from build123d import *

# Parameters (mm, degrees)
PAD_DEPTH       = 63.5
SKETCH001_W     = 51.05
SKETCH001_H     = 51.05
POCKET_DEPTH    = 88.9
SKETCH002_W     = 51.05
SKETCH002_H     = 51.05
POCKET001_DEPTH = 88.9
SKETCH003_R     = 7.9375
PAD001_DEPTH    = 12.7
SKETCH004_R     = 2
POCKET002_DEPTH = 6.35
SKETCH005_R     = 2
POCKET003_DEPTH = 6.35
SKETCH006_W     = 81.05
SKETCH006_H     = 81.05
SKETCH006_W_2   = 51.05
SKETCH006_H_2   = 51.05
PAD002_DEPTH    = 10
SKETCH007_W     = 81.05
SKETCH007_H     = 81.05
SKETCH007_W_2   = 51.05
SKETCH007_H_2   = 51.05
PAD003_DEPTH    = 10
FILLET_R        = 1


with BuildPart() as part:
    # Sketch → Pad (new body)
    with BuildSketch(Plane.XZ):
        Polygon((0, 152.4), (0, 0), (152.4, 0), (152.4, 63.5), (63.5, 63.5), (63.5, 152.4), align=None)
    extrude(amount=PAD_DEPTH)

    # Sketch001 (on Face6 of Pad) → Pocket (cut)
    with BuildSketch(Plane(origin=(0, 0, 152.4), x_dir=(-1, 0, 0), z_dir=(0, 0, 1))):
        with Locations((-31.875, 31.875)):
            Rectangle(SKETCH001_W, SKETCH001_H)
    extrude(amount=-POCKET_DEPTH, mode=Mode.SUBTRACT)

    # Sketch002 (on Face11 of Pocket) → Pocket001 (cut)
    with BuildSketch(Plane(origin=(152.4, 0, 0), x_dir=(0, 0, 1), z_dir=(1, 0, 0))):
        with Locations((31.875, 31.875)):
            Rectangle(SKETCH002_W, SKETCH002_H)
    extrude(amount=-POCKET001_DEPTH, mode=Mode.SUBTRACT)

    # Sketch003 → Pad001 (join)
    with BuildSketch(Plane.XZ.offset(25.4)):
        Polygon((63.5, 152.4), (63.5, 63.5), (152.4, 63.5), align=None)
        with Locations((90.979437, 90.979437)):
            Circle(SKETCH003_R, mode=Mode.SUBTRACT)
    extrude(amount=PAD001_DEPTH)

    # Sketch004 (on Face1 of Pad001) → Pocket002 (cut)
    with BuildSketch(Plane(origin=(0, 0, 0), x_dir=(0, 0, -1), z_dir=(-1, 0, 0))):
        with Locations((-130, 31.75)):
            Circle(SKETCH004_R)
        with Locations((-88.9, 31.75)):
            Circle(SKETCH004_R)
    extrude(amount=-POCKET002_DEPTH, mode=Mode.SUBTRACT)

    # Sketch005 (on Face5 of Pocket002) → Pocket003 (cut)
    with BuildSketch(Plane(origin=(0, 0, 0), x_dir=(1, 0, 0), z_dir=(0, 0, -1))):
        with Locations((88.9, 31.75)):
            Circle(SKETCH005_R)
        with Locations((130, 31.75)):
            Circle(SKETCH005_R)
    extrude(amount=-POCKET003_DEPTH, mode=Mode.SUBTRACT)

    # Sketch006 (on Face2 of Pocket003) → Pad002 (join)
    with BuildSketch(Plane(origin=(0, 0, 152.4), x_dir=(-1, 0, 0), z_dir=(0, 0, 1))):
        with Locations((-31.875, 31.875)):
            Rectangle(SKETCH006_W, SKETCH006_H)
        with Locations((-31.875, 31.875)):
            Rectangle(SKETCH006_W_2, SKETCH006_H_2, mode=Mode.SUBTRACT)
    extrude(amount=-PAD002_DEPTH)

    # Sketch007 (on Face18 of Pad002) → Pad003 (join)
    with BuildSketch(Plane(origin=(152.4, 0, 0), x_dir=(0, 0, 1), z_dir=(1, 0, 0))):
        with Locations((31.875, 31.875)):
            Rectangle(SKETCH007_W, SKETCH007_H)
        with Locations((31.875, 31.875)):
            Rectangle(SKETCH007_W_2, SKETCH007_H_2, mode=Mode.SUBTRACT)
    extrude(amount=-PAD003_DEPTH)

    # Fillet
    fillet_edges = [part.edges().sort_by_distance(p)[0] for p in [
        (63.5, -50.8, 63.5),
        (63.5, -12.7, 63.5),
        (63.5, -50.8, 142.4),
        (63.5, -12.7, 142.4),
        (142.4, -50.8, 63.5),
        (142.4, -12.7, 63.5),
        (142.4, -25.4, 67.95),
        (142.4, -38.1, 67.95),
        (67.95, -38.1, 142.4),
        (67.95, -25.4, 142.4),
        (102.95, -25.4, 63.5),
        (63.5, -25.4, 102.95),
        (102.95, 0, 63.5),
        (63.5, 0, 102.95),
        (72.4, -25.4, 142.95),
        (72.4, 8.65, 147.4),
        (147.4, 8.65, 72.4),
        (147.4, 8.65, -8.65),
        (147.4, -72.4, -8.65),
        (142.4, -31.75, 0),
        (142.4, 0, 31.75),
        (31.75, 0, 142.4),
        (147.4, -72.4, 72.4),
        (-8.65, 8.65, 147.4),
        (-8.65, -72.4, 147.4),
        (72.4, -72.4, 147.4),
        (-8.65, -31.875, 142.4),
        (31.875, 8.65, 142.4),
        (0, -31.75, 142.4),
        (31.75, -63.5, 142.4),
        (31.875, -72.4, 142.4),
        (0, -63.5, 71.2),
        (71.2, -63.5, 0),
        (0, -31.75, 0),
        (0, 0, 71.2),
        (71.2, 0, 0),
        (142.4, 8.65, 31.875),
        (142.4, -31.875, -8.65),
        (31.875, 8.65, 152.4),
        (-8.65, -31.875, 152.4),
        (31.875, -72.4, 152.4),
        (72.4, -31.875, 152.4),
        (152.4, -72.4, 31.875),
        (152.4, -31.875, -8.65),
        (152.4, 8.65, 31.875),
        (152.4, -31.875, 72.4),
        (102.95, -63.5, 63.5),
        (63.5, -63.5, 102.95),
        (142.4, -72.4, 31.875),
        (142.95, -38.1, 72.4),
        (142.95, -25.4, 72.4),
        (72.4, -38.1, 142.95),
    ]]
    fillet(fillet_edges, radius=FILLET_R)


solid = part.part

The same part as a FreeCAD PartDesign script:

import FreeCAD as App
import Part
import Sketcher
from FreeCAD import Vector
Q = App.Units.Quantity


def edges_at(feature, points):
    """Names of the edges that pass closest to the given points."""
    edges = feature.Shape.Edges
    near = lambda p: min(range(len(edges)), key=lambda i: edges[i].distToShape(Part.Vertex(*p))[0])
    return sorted({f"Edge{near(p) + 1}" for p in points})


def add_polygon(sketch, points):
    """Adds a closed chain of lines whose ends are joined by coincident constraints."""
    first, n = sketch.GeometryCount, len(points)
    for a, b in zip(points, points[1:] + points[:1]):
        sketch.addGeometry(Part.LineSegment(App.Vector(*a, 0), App.Vector(*b, 0)), False)
    for i in range(n):
        sketch.addConstraint(Sketcher.Constraint("Coincident", first + i, 2, first + (i + 1) % n, 1))

doc = App.newDocument("Part")
body = doc.addObject("PartDesign::Body", "Body")

sketch1 = body.newObject("Sketcher::SketchObject", "Sketch")
sketch1.AttachmentSupport = (doc.getObject("XZ_Plane"), [""])
sketch1.MapMode = "FlatFace"
add_polygon(sketch1, [(0, 152), (0, 0), (152, 0), (152, 64), (64, 64), (64, 152)])
sketch1.addConstraint(Sketcher.Constraint("Vertical", 0))
sketch1.addConstraint(Sketcher.Constraint("Horizontal", 1))
sketch1.addConstraint(Sketcher.Constraint("Vertical", 2))
sketch1.addConstraint(Sketcher.Constraint("Horizontal", 3))
sketch1.addConstraint(Sketcher.Constraint("Vertical", 4))
sketch1.addConstraint(Sketcher.Constraint("Horizontal", 5))
sketch1.addConstraint(Sketcher.Constraint("Coincident", 0, 2, -1, 1))
sketch1.addConstraint(Sketcher.Constraint("Equal", 1, 0))
sketch1.addConstraint(Sketcher.Constraint("Equal", 5, 2))
sketch1.addConstraint(Sketcher.Constraint("DistanceX", 1, 1, 1, 2, Q("6 in")))
sketch1.addConstraint(Sketcher.Constraint("DistanceX", 3, 2, 3, 1, Q("3.5 in")))
pad1 = body.newObject("PartDesign::Pad", "Pad")
pad1.Profile = sketch1
pad1.Length = Q("2.5 in")

sketch2 = body.newObject("Sketcher::SketchObject", "Sketch001")
sketch2.AttachmentSupport = (doc.getObject("XY_Plane"), [""])
sketch2.MapMode = "FlatFace"
sketch2.AttachmentOffset = App.Placement(Vector(0, 0, 6 * 25.4), App.Rotation())
add_polygon(sketch2, [(57, -57), (57, -6), (6, -6), (6, -57)])
sketch2.addConstraint(Sketcher.Constraint("Vertical", 0))
sketch2.addConstraint(Sketcher.Constraint("Horizontal", 1))
sketch2.addConstraint(Sketcher.Constraint("Vertical", 2))
sketch2.addConstraint(Sketcher.Constraint("Horizontal", 3))
sketch2.addConstraint(Sketcher.Constraint("Equal", 3, 0))
sketch2.addConstraint(Sketcher.Constraint("DistanceY", 0, 2, -1, 1, Q("0.25 in")))
sketch2.addConstraint(Sketcher.Constraint("DistanceX", -1, 1, 1, 2, Q("0.25 in")))
sketch2.addConstraint(Sketcher.Constraint("DistanceX", 1, 2, 1, 1, Q("51.05 mm")))
pocket1 = body.newObject("PartDesign::Pocket", "Pocket")
pocket1.Profile = sketch2
pocket1.Length = Q("3.5 in")

sketch3 = body.newObject("Sketcher::SketchObject", "Sketch002")
sketch3.AttachmentSupport = (doc.getObject("YZ_Plane"), [""])
sketch3.MapMode = "FlatFace"
sketch3.AttachmentOffset = App.Placement(Vector(0, 0, 6 * 25.4), App.Rotation())
add_polygon(sketch3, [(-57, 6), (-6, 6), (-6, 57), (-57, 57)])
sketch3.addConstraint(Sketcher.Constraint("Horizontal", 0))
sketch3.addConstraint(Sketcher.Constraint("Vertical", 1))
sketch3.addConstraint(Sketcher.Constraint("Horizontal", 2))
sketch3.addConstraint(Sketcher.Constraint("Vertical", 3))
sketch3.addConstraint(Sketcher.Constraint("Equal", 2, 1))
sketch3.addConstraint(Sketcher.Constraint("DistanceX", 0, 2, -1, 1, Q("0.25 in")))
sketch3.addConstraint(Sketcher.Constraint("DistanceY", -1, 1, 0, 2, Q("0.25 in")))
sketch3.addConstraint(Sketcher.Constraint("DistanceX", 0, 1, 0, 2, Q("51.05 mm")))
pocket2 = body.newObject("PartDesign::Pocket", "Pocket001")
pocket2.Profile = sketch3
pocket2.Length = Q("3.5 in")

sketch4 = body.newObject("Sketcher::SketchObject", "Sketch003")
sketch4.AttachmentSupport = (doc.getObject("XZ_Plane"), [""])
sketch4.MapMode = "FlatFace"
sketch4.AttachmentOffset = App.Placement(Vector(0, 0, 1 * 25.4), App.Rotation())
add_polygon(sketch4, [(64, 152), (64, 64), (152, 64)])
sketch4.addGeometry(Part.Circle(Vector(91, 91, 0), Vector(0, 0, 1), 8), False)
sketch4.addConstraint(Sketcher.Constraint("Vertical", 0))
sketch4.addConstraint(Sketcher.Constraint("Horizontal", 1))
sketch4.addConstraint(Sketcher.Constraint("Equal", 1, 0))
sketch4.addConstraint(Sketcher.Constraint("Diameter", 3, Q("0.625 in")))
sketch4.addConstraint(Sketcher.Constraint("DistanceX", 1, 1, 1, 2, Q("3.5 in")))
sketch4.addConstraint(Sketcher.Constraint("DistanceX", -1, 1, 1, 2, Q("6 in")))
sketch4.addConstraint(Sketcher.Constraint("DistanceY", -1, 1, 2, 2, Q("6 in")))
sketch4.addConstraint(Sketcher.Constraint("DistanceX", -1, 1, 3, 3, Q("90.979437 mm")))
sketch4.addConstraint(Sketcher.Constraint("DistanceY", -1, 1, 3, 3, Q("90.979437 mm")))
pad2 = body.newObject("PartDesign::Pad", "Pad001")
pad2.Profile = sketch4
pad2.Length = Q("0.5 in")

sketch5 = body.newObject("Sketcher::SketchObject", "Sketch004")
sketch5.AttachmentSupport = (doc.getObject("YZ_Plane"), [""])
sketch5.MapMode = "FlatFace"
sketch5.addGeometry(Part.Circle(Vector(-31.8, 130, 0), Vector(0, 0, 1), 2), False)
sketch5.addGeometry(Part.Circle(Vector(-31.8, 88.9, 0), Vector(0, 0, 1), 2), False)
sketch5.addConstraint(Sketcher.Constraint("Equal", 0, 1))
sketch5.addConstraint(Sketcher.Constraint("Vertical", 0, 3, 1, 3))
sketch5.addConstraint(Sketcher.Constraint("DistanceY", -1, 1, 1, 3, Q("3.5 in")))
sketch5.addConstraint(Sketcher.Constraint("Diameter", 0, Q("4 mm")))
sketch5.addConstraint(Sketcher.Constraint("DistanceX", 0, 3, -1, 1, Q("1.25 in")))
sketch5.addConstraint(Sketcher.Constraint("DistanceY", -1, 1, 0, 3, Q("130 mm")))
pocket3 = body.newObject("PartDesign::Pocket", "Pocket002")
pocket3.Profile = sketch5
pocket3.Length = Q("0.25 in")
pocket3.Reversed = True

sketch6 = body.newObject("Sketcher::SketchObject", "Sketch005")
sketch6.AttachmentSupport = (doc.getObject("XY_Plane"), [""])
sketch6.MapMode = "FlatFace"
sketch6.addGeometry(Part.Circle(Vector(88.9, -31.8, 0), Vector(0, 0, 1), 2), False)
sketch6.addGeometry(Part.Circle(Vector(130, -31.8, 0), Vector(0, 0, 1), 2), False)
sketch6.addConstraint(Sketcher.Constraint("Equal", 0, 1))
sketch6.addConstraint(Sketcher.Constraint("Horizontal", 0, 3, 1, 3))
sketch6.addConstraint(Sketcher.Constraint("DistanceX", -1, 1, 0, 3, Q("3.5 in")))
sketch6.addConstraint(Sketcher.Constraint("Diameter", 0, Q("4 mm")))
sketch6.addConstraint(Sketcher.Constraint("DistanceY", 0, 3, -1, 1, Q("1.25 in")))
sketch6.addConstraint(Sketcher.Constraint("DistanceX", -1, 1, 1, 3, Q("130 mm")))
pocket4 = body.newObject("PartDesign::Pocket", "Pocket003")
pocket4.Profile = sketch6
pocket4.Length = Q("0.25 in")
pocket4.Reversed = True

sketch7 = body.newObject("Sketcher::SketchObject", "Sketch006")
sketch7.AttachmentSupport = (doc.getObject("XY_Plane"), [""])
sketch7.MapMode = "FlatFace"
sketch7.AttachmentOffset = App.Placement(Vector(0, 0, 6 * 25.4), App.Rotation())
add_polygon(sketch7, [(72, -72), (72, 9), (-9, 9), (-9, -72)])
add_polygon(sketch7, [(6, -6), (57, -6), (57, -57), (6, -57)])
sketch7.addConstraint(Sketcher.Constraint("Vertical", 0))
sketch7.addConstraint(Sketcher.Constraint("Horizontal", 1))
sketch7.addConstraint(Sketcher.Constraint("Vertical", 2))
sketch7.addConstraint(Sketcher.Constraint("Horizontal", 3))
sketch7.addConstraint(Sketcher.Constraint("Horizontal", 4))
sketch7.addConstraint(Sketcher.Constraint("Vertical", 5))
sketch7.addConstraint(Sketcher.Constraint("Horizontal", 6))
sketch7.addConstraint(Sketcher.Constraint("Vertical", 7))
sketch7.addConstraint(Sketcher.Constraint("Equal", 3, 0))
sketch7.addConstraint(Sketcher.Constraint("Equal", 6, 5))
sketch7.addConstraint(Sketcher.Constraint("DistanceY", 4, 2, -1, 1, Q("0.25 in")))
sketch7.addConstraint(Sketcher.Constraint("DistanceX", -1, 1, 6, 2, Q("0.25 in")))
sketch7.addConstraint(Sketcher.Constraint("DistanceX", 1, 2, 1, 1, Q("81.05 mm")))
sketch7.addConstraint(Sketcher.Constraint("DistanceX", 4, 1, 4, 2, Q("51.05 mm")))
sketch7.addConstraint(Sketcher.Constraint("DistanceX", -1, 1, 0, 2, Q("72.4 mm")))
sketch7.addConstraint(Sketcher.Constraint("DistanceY", -1, 1, 0, 2, Q("8.65 mm")))
pad3 = body.newObject("PartDesign::Pad", "Pad002")
pad3.Profile = sketch7
pad3.Length = 10
pad3.Reversed = True

sketch8 = body.newObject("Sketcher::SketchObject", "Sketch007")
sketch8.AttachmentSupport = (doc.getObject("YZ_Plane"), [""])
sketch8.MapMode = "FlatFace"
sketch8.AttachmentOffset = App.Placement(Vector(0, 0, 6 * 25.4), App.Rotation())
add_polygon(sketch8, [(-72, -9), (9, -9), (9, 72), (-72, 72)])
add_polygon(sketch8, [(-6, 57), (-6, 6), (-57, 6), (-57, 57)])
sketch8.addConstraint(Sketcher.Constraint("Horizontal", 0))
sketch8.addConstraint(Sketcher.Constraint("Vertical", 1))
sketch8.addConstraint(Sketcher.Constraint("Horizontal", 2))
sketch8.addConstraint(Sketcher.Constraint("Vertical", 3))
sketch8.addConstraint(Sketcher.Constraint("Vertical", 4))
sketch8.addConstraint(Sketcher.Constraint("Horizontal", 5))
sketch8.addConstraint(Sketcher.Constraint("Vertical", 6))
sketch8.addConstraint(Sketcher.Constraint("Horizontal", 7))
sketch8.addConstraint(Sketcher.Constraint("Equal", 2, 1))
sketch8.addConstraint(Sketcher.Constraint("Equal", 7, 4))
sketch8.addConstraint(Sketcher.Constraint("DistanceX", 4, 2, -1, 1, Q("0.25 in")))
sketch8.addConstraint(Sketcher.Constraint("DistanceY", -1, 1, 4, 2, Q("0.25 in")))
sketch8.addConstraint(Sketcher.Constraint("DistanceX", 0, 1, 0, 2, Q("81.05 mm")))
sketch8.addConstraint(Sketcher.Constraint("DistanceX", 5, 2, 5, 1, Q("51.05 mm")))
sketch8.addConstraint(Sketcher.Constraint("DistanceX", -1, 1, 0, 2, Q("8.65 mm")))
sketch8.addConstraint(Sketcher.Constraint("DistanceY", 0, 2, -1, 1, Q("8.65 mm")))
pad4 = body.newObject("PartDesign::Pad", "Pad003")
pad4.Profile = sketch8
pad4.Length = 10
pad4.Reversed = True
doc.recompute()

fillet = body.newObject("PartDesign::Fillet", "Fillet")
fillet.Base = (pad4, edges_at(pad4, [
    (63.5, -50.8, 63.5),
    (63.5, -12.7, 63.5),
    (63.5, -50.8, 142.4),
    (63.5, -12.7, 142.4),
    (142.4, -50.8, 63.5),
    (142.4, -12.7, 63.5),
    (142.4, -25.4, 67.95),
    (142.4, -38.1, 67.95),
    (67.95, -38.1, 142.4),
    (67.95, -25.4, 142.4),
    (102.95, -25.4, 63.5),
    (63.5, -25.4, 102.95),
    (102.95, 0, 63.5),
    (63.5, 0, 102.95),
    (72.4, -25.4, 142.95),
    (72.4, 8.65, 147.4),
    (147.4, 8.65, 72.4),
    (147.4, 8.65, -8.65),
    (147.4, -72.4, -8.65),
    (142.4, -31.75, 0),
    (142.4, 0, 31.75),
    (31.75, 0, 142.4),
    (147.4, -72.4, 72.4),
    (-8.65, 8.65, 147.4),
    (-8.65, -72.4, 147.4),
    (72.4, -72.4, 147.4),
    (-8.65, -31.875, 142.4),
    (31.875, 8.65, 142.4),
    (0, -31.75, 142.4),
    (31.75, -63.5, 142.4),
    (31.875, -72.4, 142.4),
    (0, -63.5, 71.2),
    (71.2, -63.5, 0),
    (0, -31.75, 0),
    (0, 0, 71.2),
    (71.2, 0, 0),
    (142.4, 8.65, 31.875),
    (142.4, -31.875, -8.65),
    (31.875, 8.65, 152.4),
    (-8.65, -31.875, 152.4),
    (31.875, -72.4, 152.4),
    (72.4, -31.875, 152.4),
    (152.4, -72.4, 31.875),
    (152.4, -31.875, -8.65),
    (152.4, 8.65, 31.875),
    (152.4, -31.875, 72.4),
    (102.95, -63.5, 63.5),
    (63.5, -63.5, 102.95),
    (142.4, -72.4, 31.875),
    (142.95, -38.1, 72.4),
    (142.95, -25.4, 72.4),
    (72.4, -38.1, 142.95),
]))
fillet.Radius = 1

doc.recompute()
